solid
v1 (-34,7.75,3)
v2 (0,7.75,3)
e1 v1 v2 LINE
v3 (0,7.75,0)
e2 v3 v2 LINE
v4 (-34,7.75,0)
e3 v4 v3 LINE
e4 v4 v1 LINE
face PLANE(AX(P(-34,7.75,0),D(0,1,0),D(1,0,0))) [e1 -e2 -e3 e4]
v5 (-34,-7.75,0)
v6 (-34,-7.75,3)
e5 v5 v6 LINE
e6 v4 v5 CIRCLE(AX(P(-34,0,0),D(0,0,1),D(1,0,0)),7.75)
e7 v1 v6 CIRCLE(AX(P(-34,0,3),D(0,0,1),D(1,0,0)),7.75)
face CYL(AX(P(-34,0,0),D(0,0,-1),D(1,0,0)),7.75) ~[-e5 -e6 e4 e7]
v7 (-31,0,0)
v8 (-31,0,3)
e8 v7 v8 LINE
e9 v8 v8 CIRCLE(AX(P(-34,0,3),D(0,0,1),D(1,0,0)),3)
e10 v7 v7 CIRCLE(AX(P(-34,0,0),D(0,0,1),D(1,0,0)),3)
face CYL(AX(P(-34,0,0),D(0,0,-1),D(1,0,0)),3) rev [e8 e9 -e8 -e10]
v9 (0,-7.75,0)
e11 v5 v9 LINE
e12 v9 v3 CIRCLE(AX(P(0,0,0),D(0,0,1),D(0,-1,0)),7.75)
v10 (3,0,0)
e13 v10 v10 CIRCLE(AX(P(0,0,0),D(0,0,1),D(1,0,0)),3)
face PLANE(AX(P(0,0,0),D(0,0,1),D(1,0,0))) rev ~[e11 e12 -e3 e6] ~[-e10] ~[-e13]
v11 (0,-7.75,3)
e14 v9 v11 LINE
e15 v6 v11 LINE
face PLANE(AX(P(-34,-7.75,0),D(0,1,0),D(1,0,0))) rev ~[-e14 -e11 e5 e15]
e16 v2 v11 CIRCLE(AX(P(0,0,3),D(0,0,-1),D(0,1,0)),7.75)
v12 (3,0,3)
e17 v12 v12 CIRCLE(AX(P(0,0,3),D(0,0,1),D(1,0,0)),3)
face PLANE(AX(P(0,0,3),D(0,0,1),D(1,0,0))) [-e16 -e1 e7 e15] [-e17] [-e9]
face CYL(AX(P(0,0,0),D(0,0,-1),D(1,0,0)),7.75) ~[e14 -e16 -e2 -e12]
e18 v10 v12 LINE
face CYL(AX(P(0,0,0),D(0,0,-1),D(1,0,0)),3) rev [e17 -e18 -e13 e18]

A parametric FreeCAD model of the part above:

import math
import FreeCAD as App
import Part
import Sketcher

V = App.Vector
Q = App.Units.Quantity

doc = App.newDocument("Part")
body = doc.addObject("PartDesign::Body", "Body")

sketch1 = doc.addObject("Sketcher::SketchObject", "Sketch")
body.addObject(sketch1)
sketch1.AttachmentSupport = (doc.XY_Plane, [""])
sketch1.MapMode = "FlatFace"
sketch1.addGeometry(Part.ArcOfCircle(Part.Circle(V(0, 0, 0), V(0, 0, 1), 7.8), math.radians(-90), math.radians(90)), False)
sketch1.addGeometry(Part.LineSegment(V(0, 7.8, 0), V(-34, 7.8, 0)), False)
sketch1.addGeometry(Part.ArcOfCircle(Part.Circle(V(-34, 0, 0), V(0, 0, 1), 7.8), math.radians(90), math.radians(270)), False)
sketch1.addGeometry(Part.LineSegment(V(-34, -7.8, 0), V(0, -7.8, 0)), False)
sketch1.addGeometry(Part.Circle(V(0, 0, 0), V(0, 0, 1), 3), False)
sketch1.addGeometry(Part.Circle(V(-34, 0, 0), V(0, 0, 1), 3), False)
sketch1.addConstraint(Sketcher.Constraint("Tangent", 0, 2, 1, 1))
sketch1.addConstraint(Sketcher.Constraint("Tangent", 1, 2, 2, 1))
sketch1.addConstraint(Sketcher.Constraint("Tangent", 2, 2, 3, 1))
sketch1.addConstraint(Sketcher.Constraint("Tangent", 3, 2, 0, 1))
sketch1.addConstraint(Sketcher.Constraint("Horizontal", 1))
sketch1.addConstraint(Sketcher.Constraint("Horizontal", 3))
sketch1.addConstraint(Sketcher.Constraint("Coincident", 0, 3, -1, 1))
sketch1.addConstraint(Sketcher.Constraint("Coincident", 4, 3, -1, 1))
sketch1.addConstraint(Sketcher.Constraint("Coincident", 5, 3, 2, 3))
sketch1.addConstraint(Sketcher.Constraint("Equal", 4, 5))
sketch1.addConstraint(Sketcher.Constraint("Diameter", 4, Q("6 mm")))
sketch1.addConstraint(Sketcher.Constraint("DistanceX", 1, 2, 1, 1, Q("34 mm")))
sketch1.addConstraint(Sketcher.Constraint("Radius", 0, Q("7.75 mm")))
pad1 = doc.addObject("PartDesign::Pad", "Pad")
body.addObject(pad1)
pad1.Profile = sketch1
pad1.Length = 3

doc.recompute()
